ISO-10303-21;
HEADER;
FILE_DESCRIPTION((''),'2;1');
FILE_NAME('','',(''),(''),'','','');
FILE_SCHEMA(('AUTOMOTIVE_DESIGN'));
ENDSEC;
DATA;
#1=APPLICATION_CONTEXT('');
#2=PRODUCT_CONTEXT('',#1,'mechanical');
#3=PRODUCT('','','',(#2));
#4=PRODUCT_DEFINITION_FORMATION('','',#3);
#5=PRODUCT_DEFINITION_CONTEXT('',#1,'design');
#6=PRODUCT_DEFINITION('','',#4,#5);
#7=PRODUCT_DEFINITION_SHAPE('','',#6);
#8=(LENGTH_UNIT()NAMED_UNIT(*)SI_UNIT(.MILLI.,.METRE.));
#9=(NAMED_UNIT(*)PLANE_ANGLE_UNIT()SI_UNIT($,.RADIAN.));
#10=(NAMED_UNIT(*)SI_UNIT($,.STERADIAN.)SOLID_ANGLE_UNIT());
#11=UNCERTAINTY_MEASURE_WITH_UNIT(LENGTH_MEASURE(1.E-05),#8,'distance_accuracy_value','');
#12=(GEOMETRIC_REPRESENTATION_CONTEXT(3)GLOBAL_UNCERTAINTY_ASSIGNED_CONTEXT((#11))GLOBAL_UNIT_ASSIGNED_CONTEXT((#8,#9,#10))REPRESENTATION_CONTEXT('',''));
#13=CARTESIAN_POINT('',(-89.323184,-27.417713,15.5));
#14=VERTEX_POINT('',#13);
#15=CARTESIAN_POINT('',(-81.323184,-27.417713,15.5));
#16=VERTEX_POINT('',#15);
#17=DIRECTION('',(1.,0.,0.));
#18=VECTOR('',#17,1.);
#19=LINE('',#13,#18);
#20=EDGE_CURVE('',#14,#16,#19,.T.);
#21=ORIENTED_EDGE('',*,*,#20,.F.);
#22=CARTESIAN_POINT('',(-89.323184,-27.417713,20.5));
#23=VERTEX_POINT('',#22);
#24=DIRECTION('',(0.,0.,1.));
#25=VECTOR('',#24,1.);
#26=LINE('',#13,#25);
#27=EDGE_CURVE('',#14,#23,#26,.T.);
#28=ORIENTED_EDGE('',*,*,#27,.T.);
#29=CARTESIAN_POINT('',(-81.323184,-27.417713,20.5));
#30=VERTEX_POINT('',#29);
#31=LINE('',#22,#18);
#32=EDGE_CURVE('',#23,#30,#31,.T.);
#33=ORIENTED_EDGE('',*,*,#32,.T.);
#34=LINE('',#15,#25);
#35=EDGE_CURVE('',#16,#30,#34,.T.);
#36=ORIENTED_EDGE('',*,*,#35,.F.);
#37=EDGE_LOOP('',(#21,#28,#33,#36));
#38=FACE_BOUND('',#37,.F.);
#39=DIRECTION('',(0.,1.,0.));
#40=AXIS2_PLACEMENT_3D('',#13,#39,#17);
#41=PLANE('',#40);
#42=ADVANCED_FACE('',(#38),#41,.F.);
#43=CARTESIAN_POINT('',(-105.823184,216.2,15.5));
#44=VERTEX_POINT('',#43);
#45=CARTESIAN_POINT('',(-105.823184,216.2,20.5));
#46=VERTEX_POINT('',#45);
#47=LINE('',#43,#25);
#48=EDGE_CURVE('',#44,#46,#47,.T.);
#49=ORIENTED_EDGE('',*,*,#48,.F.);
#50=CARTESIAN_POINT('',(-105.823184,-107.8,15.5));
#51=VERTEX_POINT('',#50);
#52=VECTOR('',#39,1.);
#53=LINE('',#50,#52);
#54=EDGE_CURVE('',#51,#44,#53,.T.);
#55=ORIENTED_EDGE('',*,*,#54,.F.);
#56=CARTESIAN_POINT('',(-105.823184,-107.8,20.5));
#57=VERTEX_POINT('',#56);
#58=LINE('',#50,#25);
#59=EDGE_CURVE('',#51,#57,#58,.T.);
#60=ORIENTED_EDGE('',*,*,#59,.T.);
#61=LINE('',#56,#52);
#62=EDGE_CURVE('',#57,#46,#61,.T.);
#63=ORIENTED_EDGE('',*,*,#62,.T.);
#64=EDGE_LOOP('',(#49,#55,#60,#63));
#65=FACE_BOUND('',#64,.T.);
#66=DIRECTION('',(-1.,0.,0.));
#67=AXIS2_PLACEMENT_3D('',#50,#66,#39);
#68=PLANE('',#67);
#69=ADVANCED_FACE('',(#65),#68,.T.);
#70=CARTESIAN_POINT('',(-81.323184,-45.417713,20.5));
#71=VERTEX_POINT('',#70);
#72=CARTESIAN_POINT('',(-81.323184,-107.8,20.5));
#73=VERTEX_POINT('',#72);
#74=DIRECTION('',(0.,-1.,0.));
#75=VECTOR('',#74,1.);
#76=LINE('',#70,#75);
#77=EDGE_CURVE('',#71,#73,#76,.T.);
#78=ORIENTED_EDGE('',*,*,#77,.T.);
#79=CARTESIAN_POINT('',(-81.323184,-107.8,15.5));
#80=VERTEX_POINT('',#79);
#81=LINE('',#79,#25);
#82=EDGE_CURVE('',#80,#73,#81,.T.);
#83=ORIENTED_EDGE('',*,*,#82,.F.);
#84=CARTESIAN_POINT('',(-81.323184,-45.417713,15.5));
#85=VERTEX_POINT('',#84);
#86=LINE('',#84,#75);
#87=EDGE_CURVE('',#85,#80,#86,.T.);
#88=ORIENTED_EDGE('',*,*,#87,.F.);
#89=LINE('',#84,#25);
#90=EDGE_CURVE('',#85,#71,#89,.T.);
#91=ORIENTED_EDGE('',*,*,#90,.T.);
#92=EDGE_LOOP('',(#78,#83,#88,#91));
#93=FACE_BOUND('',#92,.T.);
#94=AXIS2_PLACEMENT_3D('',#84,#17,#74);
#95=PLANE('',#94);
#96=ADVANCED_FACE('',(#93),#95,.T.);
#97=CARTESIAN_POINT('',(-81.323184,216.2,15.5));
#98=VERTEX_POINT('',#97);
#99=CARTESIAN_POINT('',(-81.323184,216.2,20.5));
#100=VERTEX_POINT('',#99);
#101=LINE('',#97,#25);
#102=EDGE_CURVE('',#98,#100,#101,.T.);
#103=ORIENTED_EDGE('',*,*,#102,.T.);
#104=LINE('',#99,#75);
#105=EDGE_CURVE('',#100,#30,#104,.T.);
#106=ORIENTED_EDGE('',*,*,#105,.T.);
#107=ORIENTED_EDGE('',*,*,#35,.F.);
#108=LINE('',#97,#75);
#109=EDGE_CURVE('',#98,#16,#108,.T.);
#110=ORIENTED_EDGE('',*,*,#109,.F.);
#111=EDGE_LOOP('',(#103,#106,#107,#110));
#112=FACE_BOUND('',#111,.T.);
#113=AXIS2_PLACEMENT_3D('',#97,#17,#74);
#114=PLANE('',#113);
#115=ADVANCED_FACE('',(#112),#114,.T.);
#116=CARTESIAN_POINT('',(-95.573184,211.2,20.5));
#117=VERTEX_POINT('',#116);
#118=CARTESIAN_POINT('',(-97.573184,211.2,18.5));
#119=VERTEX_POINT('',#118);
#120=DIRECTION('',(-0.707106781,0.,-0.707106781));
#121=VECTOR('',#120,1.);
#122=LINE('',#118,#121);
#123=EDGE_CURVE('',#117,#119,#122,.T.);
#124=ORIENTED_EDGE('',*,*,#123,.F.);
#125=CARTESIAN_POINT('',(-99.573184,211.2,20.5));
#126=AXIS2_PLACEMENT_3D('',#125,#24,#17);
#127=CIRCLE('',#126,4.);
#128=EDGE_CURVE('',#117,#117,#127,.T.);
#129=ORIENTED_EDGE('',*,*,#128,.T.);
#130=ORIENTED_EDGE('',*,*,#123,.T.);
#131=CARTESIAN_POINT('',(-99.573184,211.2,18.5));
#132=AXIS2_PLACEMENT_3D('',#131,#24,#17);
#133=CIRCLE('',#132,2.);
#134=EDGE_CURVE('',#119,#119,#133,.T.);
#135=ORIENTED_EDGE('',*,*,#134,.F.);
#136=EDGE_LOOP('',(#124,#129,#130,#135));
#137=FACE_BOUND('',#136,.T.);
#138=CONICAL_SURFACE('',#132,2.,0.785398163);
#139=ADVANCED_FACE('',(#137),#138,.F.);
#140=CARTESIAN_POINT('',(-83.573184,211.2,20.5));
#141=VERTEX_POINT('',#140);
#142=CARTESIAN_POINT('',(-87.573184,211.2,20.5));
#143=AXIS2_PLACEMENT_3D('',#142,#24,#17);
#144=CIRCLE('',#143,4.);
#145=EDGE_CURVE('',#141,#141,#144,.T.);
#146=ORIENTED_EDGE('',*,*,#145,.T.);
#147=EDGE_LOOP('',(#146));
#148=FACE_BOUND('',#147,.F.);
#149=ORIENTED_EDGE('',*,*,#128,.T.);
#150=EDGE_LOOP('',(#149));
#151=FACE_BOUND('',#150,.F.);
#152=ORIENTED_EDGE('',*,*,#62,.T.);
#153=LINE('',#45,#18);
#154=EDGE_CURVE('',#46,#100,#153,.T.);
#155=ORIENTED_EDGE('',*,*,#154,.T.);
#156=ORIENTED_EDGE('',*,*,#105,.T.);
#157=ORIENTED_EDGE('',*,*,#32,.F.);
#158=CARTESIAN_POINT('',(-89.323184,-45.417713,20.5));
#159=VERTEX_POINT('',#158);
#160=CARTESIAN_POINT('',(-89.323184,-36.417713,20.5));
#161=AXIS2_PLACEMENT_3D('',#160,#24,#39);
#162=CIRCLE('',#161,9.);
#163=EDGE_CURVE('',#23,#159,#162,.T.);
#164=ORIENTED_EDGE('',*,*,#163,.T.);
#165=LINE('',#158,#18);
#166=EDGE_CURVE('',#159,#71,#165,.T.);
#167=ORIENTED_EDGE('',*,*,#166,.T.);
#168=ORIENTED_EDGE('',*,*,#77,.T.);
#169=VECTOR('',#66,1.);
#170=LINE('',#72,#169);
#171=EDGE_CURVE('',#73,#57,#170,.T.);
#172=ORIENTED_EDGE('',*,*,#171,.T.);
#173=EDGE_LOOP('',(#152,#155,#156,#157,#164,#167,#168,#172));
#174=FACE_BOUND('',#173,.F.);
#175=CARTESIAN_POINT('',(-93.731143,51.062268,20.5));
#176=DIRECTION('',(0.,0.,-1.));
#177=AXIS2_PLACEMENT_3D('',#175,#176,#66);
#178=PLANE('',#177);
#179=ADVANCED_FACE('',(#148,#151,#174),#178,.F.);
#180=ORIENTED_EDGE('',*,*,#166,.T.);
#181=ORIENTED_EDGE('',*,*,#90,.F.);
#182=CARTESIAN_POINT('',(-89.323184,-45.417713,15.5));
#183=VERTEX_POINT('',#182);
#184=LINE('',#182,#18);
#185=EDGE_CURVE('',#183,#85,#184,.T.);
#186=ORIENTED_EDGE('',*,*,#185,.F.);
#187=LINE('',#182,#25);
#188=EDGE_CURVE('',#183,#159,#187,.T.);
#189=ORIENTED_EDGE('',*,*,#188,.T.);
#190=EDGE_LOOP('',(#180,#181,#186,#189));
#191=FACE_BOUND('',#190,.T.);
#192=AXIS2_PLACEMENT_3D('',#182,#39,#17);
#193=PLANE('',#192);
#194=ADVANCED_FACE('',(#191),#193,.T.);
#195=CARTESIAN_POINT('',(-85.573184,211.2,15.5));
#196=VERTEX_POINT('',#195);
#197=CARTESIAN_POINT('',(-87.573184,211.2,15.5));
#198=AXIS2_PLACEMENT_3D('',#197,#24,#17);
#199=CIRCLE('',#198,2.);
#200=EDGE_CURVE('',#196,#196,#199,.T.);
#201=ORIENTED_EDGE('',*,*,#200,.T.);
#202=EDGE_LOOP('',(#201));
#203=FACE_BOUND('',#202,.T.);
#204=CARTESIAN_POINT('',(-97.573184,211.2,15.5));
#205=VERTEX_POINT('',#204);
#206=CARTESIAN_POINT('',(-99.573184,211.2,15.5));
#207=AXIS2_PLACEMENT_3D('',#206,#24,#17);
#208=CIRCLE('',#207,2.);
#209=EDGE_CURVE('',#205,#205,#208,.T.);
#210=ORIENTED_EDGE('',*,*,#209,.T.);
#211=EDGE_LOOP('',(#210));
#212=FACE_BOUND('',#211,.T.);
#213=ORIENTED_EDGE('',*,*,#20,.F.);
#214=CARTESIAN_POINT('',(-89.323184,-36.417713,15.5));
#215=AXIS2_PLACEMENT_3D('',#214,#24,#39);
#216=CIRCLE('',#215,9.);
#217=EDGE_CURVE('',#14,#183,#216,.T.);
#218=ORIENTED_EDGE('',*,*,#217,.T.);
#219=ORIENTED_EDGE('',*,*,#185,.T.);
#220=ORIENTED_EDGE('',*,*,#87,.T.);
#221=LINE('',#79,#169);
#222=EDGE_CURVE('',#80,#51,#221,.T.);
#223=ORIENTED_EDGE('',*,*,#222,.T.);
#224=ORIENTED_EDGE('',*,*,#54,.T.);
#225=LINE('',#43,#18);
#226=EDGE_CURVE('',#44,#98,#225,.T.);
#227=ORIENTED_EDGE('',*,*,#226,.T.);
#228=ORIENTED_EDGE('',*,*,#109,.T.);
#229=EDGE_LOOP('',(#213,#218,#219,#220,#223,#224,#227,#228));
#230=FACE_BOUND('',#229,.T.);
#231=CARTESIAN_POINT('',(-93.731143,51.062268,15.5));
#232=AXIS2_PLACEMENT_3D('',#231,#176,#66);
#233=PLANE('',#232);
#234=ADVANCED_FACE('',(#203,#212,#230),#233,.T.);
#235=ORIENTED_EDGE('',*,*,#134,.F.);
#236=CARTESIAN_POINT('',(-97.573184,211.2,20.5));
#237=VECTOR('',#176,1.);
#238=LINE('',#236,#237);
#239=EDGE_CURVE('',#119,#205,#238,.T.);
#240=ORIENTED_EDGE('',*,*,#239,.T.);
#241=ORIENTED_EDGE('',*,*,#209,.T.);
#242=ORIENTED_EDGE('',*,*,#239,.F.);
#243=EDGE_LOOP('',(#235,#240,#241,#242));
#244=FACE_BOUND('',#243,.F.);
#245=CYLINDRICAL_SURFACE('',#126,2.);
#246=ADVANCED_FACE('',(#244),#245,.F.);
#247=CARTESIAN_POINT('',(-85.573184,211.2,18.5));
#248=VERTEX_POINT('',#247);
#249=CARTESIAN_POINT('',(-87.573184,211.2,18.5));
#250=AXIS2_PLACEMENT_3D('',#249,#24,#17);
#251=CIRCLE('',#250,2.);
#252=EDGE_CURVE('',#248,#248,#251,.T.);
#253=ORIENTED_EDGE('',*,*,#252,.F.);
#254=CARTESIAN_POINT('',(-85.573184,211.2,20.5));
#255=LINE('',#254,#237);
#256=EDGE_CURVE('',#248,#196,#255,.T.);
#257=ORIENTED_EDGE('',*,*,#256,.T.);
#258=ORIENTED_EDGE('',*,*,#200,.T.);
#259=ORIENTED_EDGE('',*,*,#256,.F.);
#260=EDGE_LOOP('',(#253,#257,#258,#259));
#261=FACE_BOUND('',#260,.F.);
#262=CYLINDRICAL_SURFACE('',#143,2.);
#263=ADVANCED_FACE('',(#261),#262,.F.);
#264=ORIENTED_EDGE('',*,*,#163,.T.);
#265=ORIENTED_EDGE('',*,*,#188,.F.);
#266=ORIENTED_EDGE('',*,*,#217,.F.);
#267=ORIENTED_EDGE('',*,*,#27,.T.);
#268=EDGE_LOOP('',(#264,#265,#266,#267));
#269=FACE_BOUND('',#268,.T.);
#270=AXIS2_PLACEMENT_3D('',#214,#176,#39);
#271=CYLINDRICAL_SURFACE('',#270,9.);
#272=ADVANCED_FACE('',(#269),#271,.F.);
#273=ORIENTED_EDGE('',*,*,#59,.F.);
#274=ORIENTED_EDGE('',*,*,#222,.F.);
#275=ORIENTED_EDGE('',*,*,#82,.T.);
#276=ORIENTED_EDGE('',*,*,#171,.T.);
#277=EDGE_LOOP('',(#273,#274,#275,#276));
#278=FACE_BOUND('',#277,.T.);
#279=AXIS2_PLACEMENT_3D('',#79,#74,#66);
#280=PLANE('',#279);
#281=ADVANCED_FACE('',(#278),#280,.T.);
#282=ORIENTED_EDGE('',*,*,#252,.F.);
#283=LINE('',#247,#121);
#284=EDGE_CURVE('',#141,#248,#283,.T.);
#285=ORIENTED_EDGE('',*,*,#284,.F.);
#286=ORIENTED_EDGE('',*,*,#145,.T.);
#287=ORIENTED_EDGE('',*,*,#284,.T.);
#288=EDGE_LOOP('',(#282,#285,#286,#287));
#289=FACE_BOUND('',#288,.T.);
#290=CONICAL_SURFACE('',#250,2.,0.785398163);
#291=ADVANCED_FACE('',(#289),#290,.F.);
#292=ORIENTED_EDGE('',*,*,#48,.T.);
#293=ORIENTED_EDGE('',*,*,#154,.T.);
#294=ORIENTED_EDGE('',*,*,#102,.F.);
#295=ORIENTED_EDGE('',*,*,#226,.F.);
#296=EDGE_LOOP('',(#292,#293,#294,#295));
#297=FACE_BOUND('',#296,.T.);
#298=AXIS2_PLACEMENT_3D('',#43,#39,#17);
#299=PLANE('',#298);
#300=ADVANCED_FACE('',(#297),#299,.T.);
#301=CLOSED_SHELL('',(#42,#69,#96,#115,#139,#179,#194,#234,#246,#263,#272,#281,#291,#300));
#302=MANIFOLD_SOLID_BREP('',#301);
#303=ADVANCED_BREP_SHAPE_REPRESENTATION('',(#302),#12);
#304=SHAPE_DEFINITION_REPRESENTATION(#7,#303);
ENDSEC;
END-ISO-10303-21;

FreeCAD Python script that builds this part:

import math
import FreeCAD as App
import Part
import Sketcher

V = App.Vector


def edges_at(feature, points):
    """Names of the edges that pass closest to the given points."""
    edges = feature.Shape.Edges
    near = lambda p: min(range(len(edges)), key=lambda i: edges[i].distToShape(Part.Vertex(*p))[0])
    return sorted({f"Edge{near(p) + 1}" for p in points})

doc = App.newDocument("Part")
params = doc.addObject("Spreadsheet::Sheet", "Params")
for row, (alias, value) in enumerate([
    ("sketch1_radius", "9 mm"),
    ("sketch1_width", "8 mm"),
    ("sketch1_height", "324 mm"),
    ("sketch1_width2", "24.5 mm"),
    ("pad1_length", "5 mm"),
    ("sketch2_diameter", "4 mm"),
    ("chamfer_size", "2 mm"),
], start=1):
    params.set(f"A{row}", alias)
    params.set(f"B{row}", "=" + value)
    params.setAlias(f"B{row}", alias)

body = doc.addObject("PartDesign::Body", "Body")

# Sketch on XY plane
sketch1 = body.newObject("Sketcher::SketchObject", "Sketch")
sketch1.AttachmentSupport = (doc.getObject("XY_Plane"), [""])
sketch1.MapMode = "FlatFace"
sketch1.addGeometry([
    Part.LineSegment(V(-81, -108, 0), V(-81, -45, 0)),  # 0
    Part.LineSegment(V(-81, -45, 0), V(-89, -45, 0)),  # 1
    Part.ArcOfCircle(Part.Circle(V(-89, -36, 0), V(0, 0, 1), 9), math.radians(90), math.radians(270)),  # 2
    Part.LineSegment(V(-89, -27, 0), V(-81, -27, 0)),  # 3
    Part.LineSegment(V(-81, -27, 0), V(-81, 216, 0)),  # 4
    Part.LineSegment(V(-81, 216, 0), V(-106, 216, 0)),  # 5
    Part.LineSegment(V(-106, 216, 0), V(-106, -108, 0)),  # 6
    Part.LineSegment(V(-106, -108, 0), V(-81, -108, 0)),  # 7
], False)
sketch1.addConstraint([
    Sketcher.Constraint("Coincident", 0, 2, 1, 1),
    Sketcher.Constraint("Tangent", 1, 2, 2, 2),
    Sketcher.Constraint("Tangent", 2, 1, 3, 1),
    Sketcher.Constraint("Coincident", 3, 2, 4, 1),
    Sketcher.Constraint("Coincident", 4, 2, 5, 1),
    Sketcher.Constraint("Coincident", 5, 2, 6, 1),
    Sketcher.Constraint("Coincident", 6, 2, 7, 1),
    Sketcher.Constraint("Coincident", 7, 2, 0, 1),
    Sketcher.Constraint("Vertical", 0),
    Sketcher.Constraint("Horizontal", 1),
    Sketcher.Constraint("Horizontal", 3),
    Sketcher.Constraint("Vertical", 4),
    Sketcher.Constraint("Horizontal", 5),
    Sketcher.Constraint("Vertical", 6),
    Sketcher.Constraint("Horizontal", 7),
    Sketcher.Constraint("Vertical", 0, 2, 3, 2),
    Sketcher.Constraint("Radius", 2, 9.0),
    Sketcher.Constraint("DistanceX", 1, 2, 1, 1, 8.0),
    Sketcher.Constraint("DistanceY", 6, 2, 6, 1, 324.0),
    Sketcher.Constraint("DistanceX", 5, 2, 5, 1, 24.5),
    Sketcher.Constraint("DistanceY", -1, 1, 4, 2, 216.2),
    Sketcher.Constraint("DistanceY", 0, 1, 0, 2, 62.382287),
    Sketcher.Constraint("DistanceX", 2, 3, -1, 1, 89.323184),
])
sketch1.setExpression("Constraints[16]", "Params.sketch1_radius")
sketch1.setExpression("Constraints[17]", "Params.sketch1_width")
sketch1.setExpression("Constraints[18]", "Params.sketch1_height")
sketch1.setExpression("Constraints[19]", "Params.sketch1_width2")
pad1 = body.newObject("PartDesign::Pad", "Pad")
pad1.Profile = sketch1
pad1.setExpression("Length", "Params.pad1_length")

# Sketch on XY plane
sketch2 = body.newObject("Sketcher::SketchObject", "Sketch001")
sketch2.AttachmentSupport = (doc.getObject("XY_Plane"), [""])
sketch2.MapMode = "FlatFace"
sketch2.AttachmentOffset = App.Placement(V(0, 0, 5), App.Rotation())
sketch2.addGeometry([
    Part.Circle(V(-99.6, 211.2, 0), V(0, 0, 1), 2),
    Part.Circle(V(-87.6, 211.2, 0), V(0, 0, 1), 2),
], False)
sketch2.addConstraint([
    Sketcher.Constraint("Equal", 0, 1),
    Sketcher.Constraint("Horizontal", 0, 3, 1, 3),
    Sketcher.Constraint("Diameter", 0, 4.0),
    Sketcher.Constraint("DistanceX", 0, 3, 1, 3, 12.0),
    Sketcher.Constraint("DistanceY", -1, 1, 0, 3, 211.2),
    Sketcher.Constraint("DistanceX", 0, 3, -1, 1, 99.573184),
])
sketch2.setExpression("Constraints[2]", "Params.sketch2_diameter")
pocket1 = body.newObject("PartDesign::Pocket", "Pocket")
pocket1.Profile = sketch2
pocket1.Type = "ThroughAll"
doc.recompute()

chamfer = body.newObject("PartDesign::Chamfer", "Chamfer")
chamfer.Base = (pocket1, edges_at(pocket1, [(-89.573, 211.2, 5), (-101.573, 211.2, 5)]))
chamfer.setExpression("Size", "Params.chamfer_size")
body2 = doc.addObject("PartDesign::Body", "Body001")
doc.recompute()

body.Placement = App.Placement(V(0, 0, 15.5), App.Rotation(V(0, 0, 1), 0))
boolean = body2.newObject("PartDesign::Boolean", "Boolean")
boolean.Type = "Fuse"
boolean.addObjects([body])

doc.recompute()
